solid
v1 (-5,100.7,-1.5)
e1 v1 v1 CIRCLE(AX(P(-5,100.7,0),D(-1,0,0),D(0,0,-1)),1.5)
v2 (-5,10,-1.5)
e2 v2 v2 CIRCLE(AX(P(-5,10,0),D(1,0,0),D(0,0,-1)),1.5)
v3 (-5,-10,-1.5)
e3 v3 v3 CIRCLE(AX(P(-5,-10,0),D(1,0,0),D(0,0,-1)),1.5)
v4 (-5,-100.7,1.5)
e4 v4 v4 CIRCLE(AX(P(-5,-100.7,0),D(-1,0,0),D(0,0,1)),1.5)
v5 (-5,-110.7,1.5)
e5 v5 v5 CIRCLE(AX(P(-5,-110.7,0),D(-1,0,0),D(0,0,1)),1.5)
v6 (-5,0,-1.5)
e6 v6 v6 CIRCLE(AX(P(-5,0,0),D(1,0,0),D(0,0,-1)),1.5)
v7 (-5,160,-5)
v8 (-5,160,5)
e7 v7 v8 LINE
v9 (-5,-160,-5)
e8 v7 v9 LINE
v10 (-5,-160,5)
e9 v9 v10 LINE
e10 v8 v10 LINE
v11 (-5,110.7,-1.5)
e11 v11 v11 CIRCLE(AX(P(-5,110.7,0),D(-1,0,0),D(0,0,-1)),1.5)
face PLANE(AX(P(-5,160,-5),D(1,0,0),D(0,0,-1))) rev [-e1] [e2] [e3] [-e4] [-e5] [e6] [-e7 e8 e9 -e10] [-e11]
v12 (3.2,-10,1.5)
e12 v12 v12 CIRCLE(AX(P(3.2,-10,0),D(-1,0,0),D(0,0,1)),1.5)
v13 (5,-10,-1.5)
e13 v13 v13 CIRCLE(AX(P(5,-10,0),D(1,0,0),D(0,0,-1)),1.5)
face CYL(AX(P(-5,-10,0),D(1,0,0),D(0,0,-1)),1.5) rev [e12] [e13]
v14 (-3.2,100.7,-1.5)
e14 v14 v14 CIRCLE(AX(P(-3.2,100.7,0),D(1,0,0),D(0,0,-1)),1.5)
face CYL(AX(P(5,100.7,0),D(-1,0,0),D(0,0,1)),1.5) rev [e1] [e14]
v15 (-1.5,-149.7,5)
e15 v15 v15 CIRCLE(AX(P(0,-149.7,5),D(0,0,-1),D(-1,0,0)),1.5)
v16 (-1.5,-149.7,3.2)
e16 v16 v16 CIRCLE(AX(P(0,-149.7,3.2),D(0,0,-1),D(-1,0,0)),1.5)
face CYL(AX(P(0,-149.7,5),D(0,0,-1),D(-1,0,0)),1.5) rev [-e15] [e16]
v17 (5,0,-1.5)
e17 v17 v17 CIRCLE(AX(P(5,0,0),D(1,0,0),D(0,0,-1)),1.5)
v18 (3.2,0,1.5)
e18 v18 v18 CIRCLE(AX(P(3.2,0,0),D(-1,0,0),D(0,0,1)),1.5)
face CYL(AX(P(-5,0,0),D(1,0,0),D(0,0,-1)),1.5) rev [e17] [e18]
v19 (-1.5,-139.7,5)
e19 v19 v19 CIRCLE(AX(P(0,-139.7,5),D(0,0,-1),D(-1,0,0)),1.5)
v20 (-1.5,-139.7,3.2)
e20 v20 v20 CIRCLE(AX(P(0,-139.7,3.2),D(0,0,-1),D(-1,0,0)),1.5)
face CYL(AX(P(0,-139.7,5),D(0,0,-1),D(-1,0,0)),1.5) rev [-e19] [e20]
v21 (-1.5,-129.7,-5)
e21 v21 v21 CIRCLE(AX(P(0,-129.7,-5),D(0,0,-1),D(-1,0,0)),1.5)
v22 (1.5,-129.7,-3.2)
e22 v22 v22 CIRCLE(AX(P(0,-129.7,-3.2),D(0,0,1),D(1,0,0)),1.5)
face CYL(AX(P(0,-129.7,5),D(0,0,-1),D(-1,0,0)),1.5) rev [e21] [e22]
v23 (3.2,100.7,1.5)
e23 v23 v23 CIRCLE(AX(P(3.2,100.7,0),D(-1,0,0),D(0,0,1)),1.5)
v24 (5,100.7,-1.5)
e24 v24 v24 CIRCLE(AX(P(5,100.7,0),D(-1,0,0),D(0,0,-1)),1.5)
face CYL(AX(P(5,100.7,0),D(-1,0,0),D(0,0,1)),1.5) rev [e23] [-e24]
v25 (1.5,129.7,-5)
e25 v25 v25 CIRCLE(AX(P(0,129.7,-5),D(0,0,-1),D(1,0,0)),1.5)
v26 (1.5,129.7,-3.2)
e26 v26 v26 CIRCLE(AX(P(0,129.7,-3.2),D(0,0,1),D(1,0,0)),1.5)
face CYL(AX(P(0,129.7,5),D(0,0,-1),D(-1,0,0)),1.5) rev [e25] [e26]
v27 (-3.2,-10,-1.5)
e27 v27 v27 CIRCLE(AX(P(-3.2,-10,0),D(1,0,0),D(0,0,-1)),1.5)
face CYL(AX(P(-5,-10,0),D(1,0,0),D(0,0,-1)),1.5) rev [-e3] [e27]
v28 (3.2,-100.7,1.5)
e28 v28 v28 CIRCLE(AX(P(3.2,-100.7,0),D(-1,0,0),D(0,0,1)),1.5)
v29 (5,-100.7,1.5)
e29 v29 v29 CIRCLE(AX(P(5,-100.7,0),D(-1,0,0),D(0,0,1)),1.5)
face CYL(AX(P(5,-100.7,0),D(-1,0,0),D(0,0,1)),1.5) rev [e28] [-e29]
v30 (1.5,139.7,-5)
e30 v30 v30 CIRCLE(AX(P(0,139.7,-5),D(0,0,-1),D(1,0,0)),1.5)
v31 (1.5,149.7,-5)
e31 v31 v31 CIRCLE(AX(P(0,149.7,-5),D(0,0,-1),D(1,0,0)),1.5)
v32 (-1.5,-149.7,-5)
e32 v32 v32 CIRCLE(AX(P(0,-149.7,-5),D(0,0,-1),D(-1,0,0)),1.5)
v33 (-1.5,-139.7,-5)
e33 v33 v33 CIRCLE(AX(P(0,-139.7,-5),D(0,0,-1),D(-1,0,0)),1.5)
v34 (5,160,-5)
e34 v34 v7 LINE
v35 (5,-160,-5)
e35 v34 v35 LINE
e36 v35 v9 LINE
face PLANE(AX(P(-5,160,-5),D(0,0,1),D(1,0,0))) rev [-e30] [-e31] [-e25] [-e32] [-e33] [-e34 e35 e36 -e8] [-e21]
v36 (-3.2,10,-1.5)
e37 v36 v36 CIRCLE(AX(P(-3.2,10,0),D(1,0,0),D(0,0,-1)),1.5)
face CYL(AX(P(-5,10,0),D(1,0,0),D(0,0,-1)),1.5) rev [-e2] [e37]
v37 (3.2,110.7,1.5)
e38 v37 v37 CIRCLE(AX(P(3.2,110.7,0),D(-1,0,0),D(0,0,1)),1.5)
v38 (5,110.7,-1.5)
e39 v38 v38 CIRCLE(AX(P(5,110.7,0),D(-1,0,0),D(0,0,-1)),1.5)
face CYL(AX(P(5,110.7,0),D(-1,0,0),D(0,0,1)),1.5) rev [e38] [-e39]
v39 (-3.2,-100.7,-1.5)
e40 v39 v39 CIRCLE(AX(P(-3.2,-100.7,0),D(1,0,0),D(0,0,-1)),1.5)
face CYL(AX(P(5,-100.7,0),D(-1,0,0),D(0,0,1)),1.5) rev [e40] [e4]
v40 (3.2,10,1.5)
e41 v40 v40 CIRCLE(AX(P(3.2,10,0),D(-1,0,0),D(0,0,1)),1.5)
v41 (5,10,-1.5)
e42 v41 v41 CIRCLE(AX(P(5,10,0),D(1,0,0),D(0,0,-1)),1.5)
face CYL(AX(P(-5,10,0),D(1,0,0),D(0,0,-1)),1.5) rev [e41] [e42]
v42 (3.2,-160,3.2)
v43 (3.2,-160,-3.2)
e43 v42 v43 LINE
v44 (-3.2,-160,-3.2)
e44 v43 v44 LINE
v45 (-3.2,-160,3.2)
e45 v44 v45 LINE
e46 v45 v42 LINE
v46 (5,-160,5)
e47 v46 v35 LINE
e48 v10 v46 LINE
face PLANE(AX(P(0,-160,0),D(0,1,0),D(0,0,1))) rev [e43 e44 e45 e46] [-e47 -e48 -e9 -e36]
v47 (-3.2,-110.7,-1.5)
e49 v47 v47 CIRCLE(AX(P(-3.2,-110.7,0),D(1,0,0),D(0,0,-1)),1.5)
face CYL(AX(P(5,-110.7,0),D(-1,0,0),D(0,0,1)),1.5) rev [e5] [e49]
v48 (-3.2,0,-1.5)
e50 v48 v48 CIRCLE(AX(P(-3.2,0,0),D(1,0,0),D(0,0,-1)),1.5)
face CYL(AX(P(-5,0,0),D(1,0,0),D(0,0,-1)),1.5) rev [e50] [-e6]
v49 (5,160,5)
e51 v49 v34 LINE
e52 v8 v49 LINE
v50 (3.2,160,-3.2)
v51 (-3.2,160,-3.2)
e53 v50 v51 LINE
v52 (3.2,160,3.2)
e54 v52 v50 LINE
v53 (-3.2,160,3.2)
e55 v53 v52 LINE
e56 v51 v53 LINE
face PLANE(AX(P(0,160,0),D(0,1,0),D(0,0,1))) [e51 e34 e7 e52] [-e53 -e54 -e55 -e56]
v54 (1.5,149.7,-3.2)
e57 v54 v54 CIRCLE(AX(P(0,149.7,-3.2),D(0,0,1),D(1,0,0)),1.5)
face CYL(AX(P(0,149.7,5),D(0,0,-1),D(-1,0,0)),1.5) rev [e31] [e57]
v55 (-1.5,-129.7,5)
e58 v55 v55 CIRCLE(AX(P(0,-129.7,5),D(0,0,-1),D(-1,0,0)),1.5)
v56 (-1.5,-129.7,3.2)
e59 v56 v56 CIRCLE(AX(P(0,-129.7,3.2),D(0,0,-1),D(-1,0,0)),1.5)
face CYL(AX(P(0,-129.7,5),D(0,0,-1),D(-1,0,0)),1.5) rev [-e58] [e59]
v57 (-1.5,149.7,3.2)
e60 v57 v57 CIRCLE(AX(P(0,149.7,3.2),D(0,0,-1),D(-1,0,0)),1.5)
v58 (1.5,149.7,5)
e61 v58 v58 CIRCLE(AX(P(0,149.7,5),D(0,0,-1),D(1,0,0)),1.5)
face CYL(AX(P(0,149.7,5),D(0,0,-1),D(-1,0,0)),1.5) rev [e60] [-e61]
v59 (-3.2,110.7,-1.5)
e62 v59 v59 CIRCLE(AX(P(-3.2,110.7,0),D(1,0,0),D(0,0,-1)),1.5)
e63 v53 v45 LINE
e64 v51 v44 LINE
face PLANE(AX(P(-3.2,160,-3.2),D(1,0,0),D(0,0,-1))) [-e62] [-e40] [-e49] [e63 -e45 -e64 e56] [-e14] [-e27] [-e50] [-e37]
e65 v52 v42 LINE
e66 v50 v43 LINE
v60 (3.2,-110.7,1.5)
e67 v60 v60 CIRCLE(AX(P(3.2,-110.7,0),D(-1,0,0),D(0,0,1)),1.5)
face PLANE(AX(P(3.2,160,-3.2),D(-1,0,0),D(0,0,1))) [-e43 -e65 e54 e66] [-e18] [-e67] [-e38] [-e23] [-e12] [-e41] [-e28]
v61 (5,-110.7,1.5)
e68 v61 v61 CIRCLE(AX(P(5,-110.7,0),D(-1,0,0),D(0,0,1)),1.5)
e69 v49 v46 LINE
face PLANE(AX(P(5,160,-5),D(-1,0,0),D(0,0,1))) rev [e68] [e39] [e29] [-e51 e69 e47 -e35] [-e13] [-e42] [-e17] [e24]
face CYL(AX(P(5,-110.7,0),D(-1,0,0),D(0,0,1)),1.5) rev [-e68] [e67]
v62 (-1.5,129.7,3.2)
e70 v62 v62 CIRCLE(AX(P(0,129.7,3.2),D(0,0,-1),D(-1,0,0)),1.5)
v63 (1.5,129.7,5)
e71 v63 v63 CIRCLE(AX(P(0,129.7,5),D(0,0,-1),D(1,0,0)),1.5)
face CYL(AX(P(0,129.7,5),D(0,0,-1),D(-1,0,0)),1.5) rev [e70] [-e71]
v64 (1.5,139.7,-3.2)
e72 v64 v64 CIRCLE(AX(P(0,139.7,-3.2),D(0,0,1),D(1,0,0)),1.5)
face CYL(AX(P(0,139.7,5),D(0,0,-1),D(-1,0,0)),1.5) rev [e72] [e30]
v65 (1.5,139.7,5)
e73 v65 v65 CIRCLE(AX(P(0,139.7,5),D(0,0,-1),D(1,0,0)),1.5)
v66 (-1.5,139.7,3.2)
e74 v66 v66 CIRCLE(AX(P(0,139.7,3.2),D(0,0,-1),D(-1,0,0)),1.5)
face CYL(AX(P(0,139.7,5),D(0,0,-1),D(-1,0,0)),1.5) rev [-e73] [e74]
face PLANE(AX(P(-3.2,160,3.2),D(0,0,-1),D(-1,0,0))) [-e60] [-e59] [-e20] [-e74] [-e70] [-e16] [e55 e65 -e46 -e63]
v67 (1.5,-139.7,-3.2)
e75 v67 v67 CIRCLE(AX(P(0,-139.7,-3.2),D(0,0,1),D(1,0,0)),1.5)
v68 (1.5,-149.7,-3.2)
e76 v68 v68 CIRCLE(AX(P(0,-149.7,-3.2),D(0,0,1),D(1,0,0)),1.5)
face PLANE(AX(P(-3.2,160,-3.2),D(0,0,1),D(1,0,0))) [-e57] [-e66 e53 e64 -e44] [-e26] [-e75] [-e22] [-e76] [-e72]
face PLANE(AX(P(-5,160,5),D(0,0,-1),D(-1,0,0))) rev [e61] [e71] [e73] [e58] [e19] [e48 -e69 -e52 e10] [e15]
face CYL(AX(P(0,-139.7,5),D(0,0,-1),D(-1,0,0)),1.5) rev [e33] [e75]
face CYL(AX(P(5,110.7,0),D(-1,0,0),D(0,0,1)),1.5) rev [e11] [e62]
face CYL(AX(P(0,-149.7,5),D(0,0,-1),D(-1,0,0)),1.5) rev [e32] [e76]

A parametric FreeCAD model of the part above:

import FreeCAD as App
import Part
import Sketcher
from FreeCAD import Vector
Q = App.Units.Quantity

doc = App.newDocument("Part")
params = doc.addObject("Spreadsheet::Sheet", "Params")
for row, (alias, value) in enumerate([
    ("sketch1_width", "10 mm"),
    ("sketch1_width2", "6.4 mm"),
    ("pad1_length", "320 mm"),
    ("sketch2_diameter", "3 mm"),
    ("sketch3_diameter", "3 mm"),
    ("sketch4_diameter", "3 mm"),
], start=1):
    params.set(f"A{row}", alias)
    params.set(f"B{row}", "=" + value)
    params.setAlias(f"B{row}", alias)

body = doc.addObject("PartDesign::Body", "Body")

sketch1 = body.newObject("Sketcher::SketchObject", "Sketch")
sketch1.AttachmentSupport = (doc.getObject("XZ_Plane"), [""])
sketch1.MapMode = "FlatFace"
sketch1.addGeometry([
    Part.LineSegment(Vector(-5, -5, 0), Vector(-5, 5, 0)),
    Part.LineSegment(Vector(-5, 5, 0), Vector(5, 5, 0)),
    Part.LineSegment(Vector(5, 5, 0), Vector(5, -5, 0)),
    Part.LineSegment(Vector(5, -5, 0), Vector(-5, -5, 0)),
    Part.LineSegment(Vector(3, 3, 0), Vector(-3, 3, 0)),
    Part.LineSegment(Vector(-3, 3, 0), Vector(-3, -3, 0)),
    Part.LineSegment(Vector(-3, -3, 0), Vector(3, -3, 0)),
    Part.LineSegment(Vector(3, -3, 0), Vector(3, 3, 0)),
], False)
sketch1.addConstraint([
    Sketcher.Constraint("Coincident", 0, 2, 1, 1),
    Sketcher.Constraint("Coincident", 1, 2, 2, 1),
    Sketcher.Constraint("Coincident", 2, 2, 3, 1),
    Sketcher.Constraint("Coincident", 3, 2, 0, 1),
    Sketcher.Constraint("Coincident", 4, 2, 5, 1),
    Sketcher.Constraint("Coincident", 5, 2, 6, 1),
    Sketcher.Constraint("Coincident", 6, 2, 7, 1),
    Sketcher.Constraint("Coincident", 7, 2, 4, 1),
    Sketcher.Constraint("Vertical", 0),
    Sketcher.Constraint("Horizontal", 1),
    Sketcher.Constraint("Vertical", 2),
    Sketcher.Constraint("Horizontal", 3),
    Sketcher.Constraint("Horizontal", 4),
    Sketcher.Constraint("Vertical", 5),
    Sketcher.Constraint("Horizontal", 6),
    Sketcher.Constraint("Vertical", 7),
    Sketcher.Constraint("Symmetric", 0, 2, 2, 2, -1, 1),
    Sketcher.Constraint("Symmetric", 4, 2, 6, 2, -1, 1),
    Sketcher.Constraint("Equal", 3, 0),
    Sketcher.Constraint("Equal", 6, 5),
    Sketcher.Constraint("DistanceX", 1, 1, 1, 2, Q("10 mm")),
    Sketcher.Constraint("DistanceX", 4, 2, 4, 1, Q("6.4 mm")),
])
sketch1.setExpression("Constraints[20]", "Params.sketch1_width")
sketch1.setExpression("Constraints[21]", "Params.sketch1_width2")
pad1 = body.newObject("PartDesign::Pad", "Pad")
pad1.Profile = sketch1
pad1.setExpression("Length", "Params.pad1_length")
pad1.Midplane = True

sketch2 = body.newObject("Sketcher::SketchObject", "Sketch001")
sketch2.AttachmentSupport = (doc.getObject("XY_Plane"), [""])
sketch2.MapMode = "FlatFace"
sketch2.AttachmentOffset = App.Placement(Vector(0, 0, -5), App.Rotation())
sketch2.addGeometry([
    Part.Circle(Vector(0, -149.7, 0), Vector(0, 0, 1), 1.5),
    Part.Circle(Vector(0, -139.7, 0), Vector(0, 0, 1), 1.5),
    Part.Circle(Vector(0, -129.7, 0), Vector(0, 0, 1), 1.5),
    Part.Circle(Vector(0, 139.7, 0), Vector(0, 0, 1), 1.5),
    Part.Circle(Vector(0, 149.7, 0), Vector(0, 0, 1), 1.5),
    Part.Circle(Vector(0, 129.7, 0), Vector(0, 0, 1), 1.5),
], False)
sketch2.addConstraint([
    Sketcher.Constraint("Equal", 0, 1),
    Sketcher.Constraint("Equal", 1, 2),
    Sketcher.Constraint("Equal", 2, 3),
    Sketcher.Constraint("Equal", 3, 4),
    Sketcher.Constraint("Equal", 4, 5),
    Sketcher.Constraint("Symmetric", 1, 3, 3, 3, -1, 1),
    Sketcher.Constraint("Symmetric", 0, 3, 4, 3, -1, 1),
    Sketcher.Constraint("Symmetric", 2, 3, 5, 3, -1, 1),
    Sketcher.Constraint("PointOnObject", 0, 3, -2),
    Sketcher.Constraint("PointOnObject", 1, 3, -2),
    Sketcher.Constraint("PointOnObject", 2, 3, -2),
    Sketcher.Constraint("Diameter", 0, Q("3 mm")),
    Sketcher.Constraint("DistanceY", 0, 3, 1, 3, Q("10 mm")),
    Sketcher.Constraint("DistanceY", 1, 3, 2, 3, Q("10 mm")),
    Sketcher.Constraint("DistanceY", 0, 3, -1, 1, Q("149.7 mm")),
])
sketch2.setExpression("Constraints[11]", "Params.sketch2_diameter")
pocket1 = body.newObject("PartDesign::Pocket", "Pocket")
pocket1.Profile = sketch2
pocket1.Type = "ThroughAll"
pocket1.Reversed = True

sketch3 = body.newObject("Sketcher::SketchObject", "Sketch002")
sketch3.AttachmentSupport = (doc.getObject("YZ_Plane"), [""])
sketch3.MapMode = "FlatFace"
sketch3.AttachmentOffset = App.Placement(Vector(0, 0, -5), App.Rotation())
sketch3.addGeometry([
    Part.Circle(Vector(-110.7, 0, 0), Vector(0, 0, 1), 1.5),
    Part.Circle(Vector(-100.7, 0, 0), Vector(0, 0, 1), 1.5),
    Part.Circle(Vector(100.7, 0, 0), Vector(0, 0, 1), 1.5),
    Part.Circle(Vector(110.7, 0, 0), Vector(0, 0, 1), 1.5),
], False)
sketch3.addConstraint([
    Sketcher.Constraint("Equal", 0, 1),
    Sketcher.Constraint("Equal", 1, 2),
    Sketcher.Constraint("Equal", 2, 3),
    Sketcher.Constraint("Symmetric", 1, 3, 2, 3, -1, 1),
    Sketcher.Constraint("Symmetric", 0, 3, 3, 3, -1, 1),
    Sketcher.Constraint("PointOnObject", 0, 3, -1),
    Sketcher.Constraint("PointOnObject", 1, 3, -1),
    Sketcher.Constraint("Diameter", 0, Q("3 mm")),
    Sketcher.Constraint("DistanceX", 0, 3, 1, 3, Q("10 mm")),
    Sketcher.Constraint("DistanceX", 0, 3, -1, 1, Q("110.7 mm")),
])
sketch3.setExpression("Constraints[7]", "Params.sketch3_diameter")
pocket2 = body.newObject("PartDesign::Pocket", "Pocket001")
pocket2.Profile = sketch3
pocket2.Type = "ThroughAll"
pocket2.Reversed = True

sketch4 = body.newObject("Sketcher::SketchObject", "Sketch003")
sketch4.AttachmentSupport = (doc.getObject("YZ_Plane"), [""])
sketch4.MapMode = "FlatFace"
sketch4.AttachmentOffset = App.Placement(Vector(0, 0, 5), App.Rotation())
sketch4.addGeometry([
    Part.Circle(Vector(0, 0, 0), Vector(0, 0, 1), 1.5),
    Part.Circle(Vector(-10, 0, 0), Vector(0, 0, 1), 1.5),
    Part.Circle(Vector(10, 0, 0), Vector(0, 0, 1), 1.5),
], False)
sketch4.addConstraint([
    Sketcher.Constraint("Coincident", 0, 3, -1, 1),
    Sketcher.Constraint("Equal", 0, 1),
    Sketcher.Constraint("Equal", 1, 2),
    Sketcher.Constraint("Symmetric", 1, 3, 2, 3, -1, 1),
    Sketcher.Constraint("PointOnObject", 1, 3, -1),
    Sketcher.Constraint("Diameter", 0, Q("3 mm")),
    Sketcher.Constraint("DistanceX", 1, 3, -1, 1, Q("10 mm")),
])
sketch4.setExpression("Constraints[5]", "Params.sketch4_diameter")
pocket3 = body.newObject("PartDesign::Pocket", "Pocket002")
pocket3.Profile = sketch4
pocket3.Type = "ThroughAll"

doc.recompute()
